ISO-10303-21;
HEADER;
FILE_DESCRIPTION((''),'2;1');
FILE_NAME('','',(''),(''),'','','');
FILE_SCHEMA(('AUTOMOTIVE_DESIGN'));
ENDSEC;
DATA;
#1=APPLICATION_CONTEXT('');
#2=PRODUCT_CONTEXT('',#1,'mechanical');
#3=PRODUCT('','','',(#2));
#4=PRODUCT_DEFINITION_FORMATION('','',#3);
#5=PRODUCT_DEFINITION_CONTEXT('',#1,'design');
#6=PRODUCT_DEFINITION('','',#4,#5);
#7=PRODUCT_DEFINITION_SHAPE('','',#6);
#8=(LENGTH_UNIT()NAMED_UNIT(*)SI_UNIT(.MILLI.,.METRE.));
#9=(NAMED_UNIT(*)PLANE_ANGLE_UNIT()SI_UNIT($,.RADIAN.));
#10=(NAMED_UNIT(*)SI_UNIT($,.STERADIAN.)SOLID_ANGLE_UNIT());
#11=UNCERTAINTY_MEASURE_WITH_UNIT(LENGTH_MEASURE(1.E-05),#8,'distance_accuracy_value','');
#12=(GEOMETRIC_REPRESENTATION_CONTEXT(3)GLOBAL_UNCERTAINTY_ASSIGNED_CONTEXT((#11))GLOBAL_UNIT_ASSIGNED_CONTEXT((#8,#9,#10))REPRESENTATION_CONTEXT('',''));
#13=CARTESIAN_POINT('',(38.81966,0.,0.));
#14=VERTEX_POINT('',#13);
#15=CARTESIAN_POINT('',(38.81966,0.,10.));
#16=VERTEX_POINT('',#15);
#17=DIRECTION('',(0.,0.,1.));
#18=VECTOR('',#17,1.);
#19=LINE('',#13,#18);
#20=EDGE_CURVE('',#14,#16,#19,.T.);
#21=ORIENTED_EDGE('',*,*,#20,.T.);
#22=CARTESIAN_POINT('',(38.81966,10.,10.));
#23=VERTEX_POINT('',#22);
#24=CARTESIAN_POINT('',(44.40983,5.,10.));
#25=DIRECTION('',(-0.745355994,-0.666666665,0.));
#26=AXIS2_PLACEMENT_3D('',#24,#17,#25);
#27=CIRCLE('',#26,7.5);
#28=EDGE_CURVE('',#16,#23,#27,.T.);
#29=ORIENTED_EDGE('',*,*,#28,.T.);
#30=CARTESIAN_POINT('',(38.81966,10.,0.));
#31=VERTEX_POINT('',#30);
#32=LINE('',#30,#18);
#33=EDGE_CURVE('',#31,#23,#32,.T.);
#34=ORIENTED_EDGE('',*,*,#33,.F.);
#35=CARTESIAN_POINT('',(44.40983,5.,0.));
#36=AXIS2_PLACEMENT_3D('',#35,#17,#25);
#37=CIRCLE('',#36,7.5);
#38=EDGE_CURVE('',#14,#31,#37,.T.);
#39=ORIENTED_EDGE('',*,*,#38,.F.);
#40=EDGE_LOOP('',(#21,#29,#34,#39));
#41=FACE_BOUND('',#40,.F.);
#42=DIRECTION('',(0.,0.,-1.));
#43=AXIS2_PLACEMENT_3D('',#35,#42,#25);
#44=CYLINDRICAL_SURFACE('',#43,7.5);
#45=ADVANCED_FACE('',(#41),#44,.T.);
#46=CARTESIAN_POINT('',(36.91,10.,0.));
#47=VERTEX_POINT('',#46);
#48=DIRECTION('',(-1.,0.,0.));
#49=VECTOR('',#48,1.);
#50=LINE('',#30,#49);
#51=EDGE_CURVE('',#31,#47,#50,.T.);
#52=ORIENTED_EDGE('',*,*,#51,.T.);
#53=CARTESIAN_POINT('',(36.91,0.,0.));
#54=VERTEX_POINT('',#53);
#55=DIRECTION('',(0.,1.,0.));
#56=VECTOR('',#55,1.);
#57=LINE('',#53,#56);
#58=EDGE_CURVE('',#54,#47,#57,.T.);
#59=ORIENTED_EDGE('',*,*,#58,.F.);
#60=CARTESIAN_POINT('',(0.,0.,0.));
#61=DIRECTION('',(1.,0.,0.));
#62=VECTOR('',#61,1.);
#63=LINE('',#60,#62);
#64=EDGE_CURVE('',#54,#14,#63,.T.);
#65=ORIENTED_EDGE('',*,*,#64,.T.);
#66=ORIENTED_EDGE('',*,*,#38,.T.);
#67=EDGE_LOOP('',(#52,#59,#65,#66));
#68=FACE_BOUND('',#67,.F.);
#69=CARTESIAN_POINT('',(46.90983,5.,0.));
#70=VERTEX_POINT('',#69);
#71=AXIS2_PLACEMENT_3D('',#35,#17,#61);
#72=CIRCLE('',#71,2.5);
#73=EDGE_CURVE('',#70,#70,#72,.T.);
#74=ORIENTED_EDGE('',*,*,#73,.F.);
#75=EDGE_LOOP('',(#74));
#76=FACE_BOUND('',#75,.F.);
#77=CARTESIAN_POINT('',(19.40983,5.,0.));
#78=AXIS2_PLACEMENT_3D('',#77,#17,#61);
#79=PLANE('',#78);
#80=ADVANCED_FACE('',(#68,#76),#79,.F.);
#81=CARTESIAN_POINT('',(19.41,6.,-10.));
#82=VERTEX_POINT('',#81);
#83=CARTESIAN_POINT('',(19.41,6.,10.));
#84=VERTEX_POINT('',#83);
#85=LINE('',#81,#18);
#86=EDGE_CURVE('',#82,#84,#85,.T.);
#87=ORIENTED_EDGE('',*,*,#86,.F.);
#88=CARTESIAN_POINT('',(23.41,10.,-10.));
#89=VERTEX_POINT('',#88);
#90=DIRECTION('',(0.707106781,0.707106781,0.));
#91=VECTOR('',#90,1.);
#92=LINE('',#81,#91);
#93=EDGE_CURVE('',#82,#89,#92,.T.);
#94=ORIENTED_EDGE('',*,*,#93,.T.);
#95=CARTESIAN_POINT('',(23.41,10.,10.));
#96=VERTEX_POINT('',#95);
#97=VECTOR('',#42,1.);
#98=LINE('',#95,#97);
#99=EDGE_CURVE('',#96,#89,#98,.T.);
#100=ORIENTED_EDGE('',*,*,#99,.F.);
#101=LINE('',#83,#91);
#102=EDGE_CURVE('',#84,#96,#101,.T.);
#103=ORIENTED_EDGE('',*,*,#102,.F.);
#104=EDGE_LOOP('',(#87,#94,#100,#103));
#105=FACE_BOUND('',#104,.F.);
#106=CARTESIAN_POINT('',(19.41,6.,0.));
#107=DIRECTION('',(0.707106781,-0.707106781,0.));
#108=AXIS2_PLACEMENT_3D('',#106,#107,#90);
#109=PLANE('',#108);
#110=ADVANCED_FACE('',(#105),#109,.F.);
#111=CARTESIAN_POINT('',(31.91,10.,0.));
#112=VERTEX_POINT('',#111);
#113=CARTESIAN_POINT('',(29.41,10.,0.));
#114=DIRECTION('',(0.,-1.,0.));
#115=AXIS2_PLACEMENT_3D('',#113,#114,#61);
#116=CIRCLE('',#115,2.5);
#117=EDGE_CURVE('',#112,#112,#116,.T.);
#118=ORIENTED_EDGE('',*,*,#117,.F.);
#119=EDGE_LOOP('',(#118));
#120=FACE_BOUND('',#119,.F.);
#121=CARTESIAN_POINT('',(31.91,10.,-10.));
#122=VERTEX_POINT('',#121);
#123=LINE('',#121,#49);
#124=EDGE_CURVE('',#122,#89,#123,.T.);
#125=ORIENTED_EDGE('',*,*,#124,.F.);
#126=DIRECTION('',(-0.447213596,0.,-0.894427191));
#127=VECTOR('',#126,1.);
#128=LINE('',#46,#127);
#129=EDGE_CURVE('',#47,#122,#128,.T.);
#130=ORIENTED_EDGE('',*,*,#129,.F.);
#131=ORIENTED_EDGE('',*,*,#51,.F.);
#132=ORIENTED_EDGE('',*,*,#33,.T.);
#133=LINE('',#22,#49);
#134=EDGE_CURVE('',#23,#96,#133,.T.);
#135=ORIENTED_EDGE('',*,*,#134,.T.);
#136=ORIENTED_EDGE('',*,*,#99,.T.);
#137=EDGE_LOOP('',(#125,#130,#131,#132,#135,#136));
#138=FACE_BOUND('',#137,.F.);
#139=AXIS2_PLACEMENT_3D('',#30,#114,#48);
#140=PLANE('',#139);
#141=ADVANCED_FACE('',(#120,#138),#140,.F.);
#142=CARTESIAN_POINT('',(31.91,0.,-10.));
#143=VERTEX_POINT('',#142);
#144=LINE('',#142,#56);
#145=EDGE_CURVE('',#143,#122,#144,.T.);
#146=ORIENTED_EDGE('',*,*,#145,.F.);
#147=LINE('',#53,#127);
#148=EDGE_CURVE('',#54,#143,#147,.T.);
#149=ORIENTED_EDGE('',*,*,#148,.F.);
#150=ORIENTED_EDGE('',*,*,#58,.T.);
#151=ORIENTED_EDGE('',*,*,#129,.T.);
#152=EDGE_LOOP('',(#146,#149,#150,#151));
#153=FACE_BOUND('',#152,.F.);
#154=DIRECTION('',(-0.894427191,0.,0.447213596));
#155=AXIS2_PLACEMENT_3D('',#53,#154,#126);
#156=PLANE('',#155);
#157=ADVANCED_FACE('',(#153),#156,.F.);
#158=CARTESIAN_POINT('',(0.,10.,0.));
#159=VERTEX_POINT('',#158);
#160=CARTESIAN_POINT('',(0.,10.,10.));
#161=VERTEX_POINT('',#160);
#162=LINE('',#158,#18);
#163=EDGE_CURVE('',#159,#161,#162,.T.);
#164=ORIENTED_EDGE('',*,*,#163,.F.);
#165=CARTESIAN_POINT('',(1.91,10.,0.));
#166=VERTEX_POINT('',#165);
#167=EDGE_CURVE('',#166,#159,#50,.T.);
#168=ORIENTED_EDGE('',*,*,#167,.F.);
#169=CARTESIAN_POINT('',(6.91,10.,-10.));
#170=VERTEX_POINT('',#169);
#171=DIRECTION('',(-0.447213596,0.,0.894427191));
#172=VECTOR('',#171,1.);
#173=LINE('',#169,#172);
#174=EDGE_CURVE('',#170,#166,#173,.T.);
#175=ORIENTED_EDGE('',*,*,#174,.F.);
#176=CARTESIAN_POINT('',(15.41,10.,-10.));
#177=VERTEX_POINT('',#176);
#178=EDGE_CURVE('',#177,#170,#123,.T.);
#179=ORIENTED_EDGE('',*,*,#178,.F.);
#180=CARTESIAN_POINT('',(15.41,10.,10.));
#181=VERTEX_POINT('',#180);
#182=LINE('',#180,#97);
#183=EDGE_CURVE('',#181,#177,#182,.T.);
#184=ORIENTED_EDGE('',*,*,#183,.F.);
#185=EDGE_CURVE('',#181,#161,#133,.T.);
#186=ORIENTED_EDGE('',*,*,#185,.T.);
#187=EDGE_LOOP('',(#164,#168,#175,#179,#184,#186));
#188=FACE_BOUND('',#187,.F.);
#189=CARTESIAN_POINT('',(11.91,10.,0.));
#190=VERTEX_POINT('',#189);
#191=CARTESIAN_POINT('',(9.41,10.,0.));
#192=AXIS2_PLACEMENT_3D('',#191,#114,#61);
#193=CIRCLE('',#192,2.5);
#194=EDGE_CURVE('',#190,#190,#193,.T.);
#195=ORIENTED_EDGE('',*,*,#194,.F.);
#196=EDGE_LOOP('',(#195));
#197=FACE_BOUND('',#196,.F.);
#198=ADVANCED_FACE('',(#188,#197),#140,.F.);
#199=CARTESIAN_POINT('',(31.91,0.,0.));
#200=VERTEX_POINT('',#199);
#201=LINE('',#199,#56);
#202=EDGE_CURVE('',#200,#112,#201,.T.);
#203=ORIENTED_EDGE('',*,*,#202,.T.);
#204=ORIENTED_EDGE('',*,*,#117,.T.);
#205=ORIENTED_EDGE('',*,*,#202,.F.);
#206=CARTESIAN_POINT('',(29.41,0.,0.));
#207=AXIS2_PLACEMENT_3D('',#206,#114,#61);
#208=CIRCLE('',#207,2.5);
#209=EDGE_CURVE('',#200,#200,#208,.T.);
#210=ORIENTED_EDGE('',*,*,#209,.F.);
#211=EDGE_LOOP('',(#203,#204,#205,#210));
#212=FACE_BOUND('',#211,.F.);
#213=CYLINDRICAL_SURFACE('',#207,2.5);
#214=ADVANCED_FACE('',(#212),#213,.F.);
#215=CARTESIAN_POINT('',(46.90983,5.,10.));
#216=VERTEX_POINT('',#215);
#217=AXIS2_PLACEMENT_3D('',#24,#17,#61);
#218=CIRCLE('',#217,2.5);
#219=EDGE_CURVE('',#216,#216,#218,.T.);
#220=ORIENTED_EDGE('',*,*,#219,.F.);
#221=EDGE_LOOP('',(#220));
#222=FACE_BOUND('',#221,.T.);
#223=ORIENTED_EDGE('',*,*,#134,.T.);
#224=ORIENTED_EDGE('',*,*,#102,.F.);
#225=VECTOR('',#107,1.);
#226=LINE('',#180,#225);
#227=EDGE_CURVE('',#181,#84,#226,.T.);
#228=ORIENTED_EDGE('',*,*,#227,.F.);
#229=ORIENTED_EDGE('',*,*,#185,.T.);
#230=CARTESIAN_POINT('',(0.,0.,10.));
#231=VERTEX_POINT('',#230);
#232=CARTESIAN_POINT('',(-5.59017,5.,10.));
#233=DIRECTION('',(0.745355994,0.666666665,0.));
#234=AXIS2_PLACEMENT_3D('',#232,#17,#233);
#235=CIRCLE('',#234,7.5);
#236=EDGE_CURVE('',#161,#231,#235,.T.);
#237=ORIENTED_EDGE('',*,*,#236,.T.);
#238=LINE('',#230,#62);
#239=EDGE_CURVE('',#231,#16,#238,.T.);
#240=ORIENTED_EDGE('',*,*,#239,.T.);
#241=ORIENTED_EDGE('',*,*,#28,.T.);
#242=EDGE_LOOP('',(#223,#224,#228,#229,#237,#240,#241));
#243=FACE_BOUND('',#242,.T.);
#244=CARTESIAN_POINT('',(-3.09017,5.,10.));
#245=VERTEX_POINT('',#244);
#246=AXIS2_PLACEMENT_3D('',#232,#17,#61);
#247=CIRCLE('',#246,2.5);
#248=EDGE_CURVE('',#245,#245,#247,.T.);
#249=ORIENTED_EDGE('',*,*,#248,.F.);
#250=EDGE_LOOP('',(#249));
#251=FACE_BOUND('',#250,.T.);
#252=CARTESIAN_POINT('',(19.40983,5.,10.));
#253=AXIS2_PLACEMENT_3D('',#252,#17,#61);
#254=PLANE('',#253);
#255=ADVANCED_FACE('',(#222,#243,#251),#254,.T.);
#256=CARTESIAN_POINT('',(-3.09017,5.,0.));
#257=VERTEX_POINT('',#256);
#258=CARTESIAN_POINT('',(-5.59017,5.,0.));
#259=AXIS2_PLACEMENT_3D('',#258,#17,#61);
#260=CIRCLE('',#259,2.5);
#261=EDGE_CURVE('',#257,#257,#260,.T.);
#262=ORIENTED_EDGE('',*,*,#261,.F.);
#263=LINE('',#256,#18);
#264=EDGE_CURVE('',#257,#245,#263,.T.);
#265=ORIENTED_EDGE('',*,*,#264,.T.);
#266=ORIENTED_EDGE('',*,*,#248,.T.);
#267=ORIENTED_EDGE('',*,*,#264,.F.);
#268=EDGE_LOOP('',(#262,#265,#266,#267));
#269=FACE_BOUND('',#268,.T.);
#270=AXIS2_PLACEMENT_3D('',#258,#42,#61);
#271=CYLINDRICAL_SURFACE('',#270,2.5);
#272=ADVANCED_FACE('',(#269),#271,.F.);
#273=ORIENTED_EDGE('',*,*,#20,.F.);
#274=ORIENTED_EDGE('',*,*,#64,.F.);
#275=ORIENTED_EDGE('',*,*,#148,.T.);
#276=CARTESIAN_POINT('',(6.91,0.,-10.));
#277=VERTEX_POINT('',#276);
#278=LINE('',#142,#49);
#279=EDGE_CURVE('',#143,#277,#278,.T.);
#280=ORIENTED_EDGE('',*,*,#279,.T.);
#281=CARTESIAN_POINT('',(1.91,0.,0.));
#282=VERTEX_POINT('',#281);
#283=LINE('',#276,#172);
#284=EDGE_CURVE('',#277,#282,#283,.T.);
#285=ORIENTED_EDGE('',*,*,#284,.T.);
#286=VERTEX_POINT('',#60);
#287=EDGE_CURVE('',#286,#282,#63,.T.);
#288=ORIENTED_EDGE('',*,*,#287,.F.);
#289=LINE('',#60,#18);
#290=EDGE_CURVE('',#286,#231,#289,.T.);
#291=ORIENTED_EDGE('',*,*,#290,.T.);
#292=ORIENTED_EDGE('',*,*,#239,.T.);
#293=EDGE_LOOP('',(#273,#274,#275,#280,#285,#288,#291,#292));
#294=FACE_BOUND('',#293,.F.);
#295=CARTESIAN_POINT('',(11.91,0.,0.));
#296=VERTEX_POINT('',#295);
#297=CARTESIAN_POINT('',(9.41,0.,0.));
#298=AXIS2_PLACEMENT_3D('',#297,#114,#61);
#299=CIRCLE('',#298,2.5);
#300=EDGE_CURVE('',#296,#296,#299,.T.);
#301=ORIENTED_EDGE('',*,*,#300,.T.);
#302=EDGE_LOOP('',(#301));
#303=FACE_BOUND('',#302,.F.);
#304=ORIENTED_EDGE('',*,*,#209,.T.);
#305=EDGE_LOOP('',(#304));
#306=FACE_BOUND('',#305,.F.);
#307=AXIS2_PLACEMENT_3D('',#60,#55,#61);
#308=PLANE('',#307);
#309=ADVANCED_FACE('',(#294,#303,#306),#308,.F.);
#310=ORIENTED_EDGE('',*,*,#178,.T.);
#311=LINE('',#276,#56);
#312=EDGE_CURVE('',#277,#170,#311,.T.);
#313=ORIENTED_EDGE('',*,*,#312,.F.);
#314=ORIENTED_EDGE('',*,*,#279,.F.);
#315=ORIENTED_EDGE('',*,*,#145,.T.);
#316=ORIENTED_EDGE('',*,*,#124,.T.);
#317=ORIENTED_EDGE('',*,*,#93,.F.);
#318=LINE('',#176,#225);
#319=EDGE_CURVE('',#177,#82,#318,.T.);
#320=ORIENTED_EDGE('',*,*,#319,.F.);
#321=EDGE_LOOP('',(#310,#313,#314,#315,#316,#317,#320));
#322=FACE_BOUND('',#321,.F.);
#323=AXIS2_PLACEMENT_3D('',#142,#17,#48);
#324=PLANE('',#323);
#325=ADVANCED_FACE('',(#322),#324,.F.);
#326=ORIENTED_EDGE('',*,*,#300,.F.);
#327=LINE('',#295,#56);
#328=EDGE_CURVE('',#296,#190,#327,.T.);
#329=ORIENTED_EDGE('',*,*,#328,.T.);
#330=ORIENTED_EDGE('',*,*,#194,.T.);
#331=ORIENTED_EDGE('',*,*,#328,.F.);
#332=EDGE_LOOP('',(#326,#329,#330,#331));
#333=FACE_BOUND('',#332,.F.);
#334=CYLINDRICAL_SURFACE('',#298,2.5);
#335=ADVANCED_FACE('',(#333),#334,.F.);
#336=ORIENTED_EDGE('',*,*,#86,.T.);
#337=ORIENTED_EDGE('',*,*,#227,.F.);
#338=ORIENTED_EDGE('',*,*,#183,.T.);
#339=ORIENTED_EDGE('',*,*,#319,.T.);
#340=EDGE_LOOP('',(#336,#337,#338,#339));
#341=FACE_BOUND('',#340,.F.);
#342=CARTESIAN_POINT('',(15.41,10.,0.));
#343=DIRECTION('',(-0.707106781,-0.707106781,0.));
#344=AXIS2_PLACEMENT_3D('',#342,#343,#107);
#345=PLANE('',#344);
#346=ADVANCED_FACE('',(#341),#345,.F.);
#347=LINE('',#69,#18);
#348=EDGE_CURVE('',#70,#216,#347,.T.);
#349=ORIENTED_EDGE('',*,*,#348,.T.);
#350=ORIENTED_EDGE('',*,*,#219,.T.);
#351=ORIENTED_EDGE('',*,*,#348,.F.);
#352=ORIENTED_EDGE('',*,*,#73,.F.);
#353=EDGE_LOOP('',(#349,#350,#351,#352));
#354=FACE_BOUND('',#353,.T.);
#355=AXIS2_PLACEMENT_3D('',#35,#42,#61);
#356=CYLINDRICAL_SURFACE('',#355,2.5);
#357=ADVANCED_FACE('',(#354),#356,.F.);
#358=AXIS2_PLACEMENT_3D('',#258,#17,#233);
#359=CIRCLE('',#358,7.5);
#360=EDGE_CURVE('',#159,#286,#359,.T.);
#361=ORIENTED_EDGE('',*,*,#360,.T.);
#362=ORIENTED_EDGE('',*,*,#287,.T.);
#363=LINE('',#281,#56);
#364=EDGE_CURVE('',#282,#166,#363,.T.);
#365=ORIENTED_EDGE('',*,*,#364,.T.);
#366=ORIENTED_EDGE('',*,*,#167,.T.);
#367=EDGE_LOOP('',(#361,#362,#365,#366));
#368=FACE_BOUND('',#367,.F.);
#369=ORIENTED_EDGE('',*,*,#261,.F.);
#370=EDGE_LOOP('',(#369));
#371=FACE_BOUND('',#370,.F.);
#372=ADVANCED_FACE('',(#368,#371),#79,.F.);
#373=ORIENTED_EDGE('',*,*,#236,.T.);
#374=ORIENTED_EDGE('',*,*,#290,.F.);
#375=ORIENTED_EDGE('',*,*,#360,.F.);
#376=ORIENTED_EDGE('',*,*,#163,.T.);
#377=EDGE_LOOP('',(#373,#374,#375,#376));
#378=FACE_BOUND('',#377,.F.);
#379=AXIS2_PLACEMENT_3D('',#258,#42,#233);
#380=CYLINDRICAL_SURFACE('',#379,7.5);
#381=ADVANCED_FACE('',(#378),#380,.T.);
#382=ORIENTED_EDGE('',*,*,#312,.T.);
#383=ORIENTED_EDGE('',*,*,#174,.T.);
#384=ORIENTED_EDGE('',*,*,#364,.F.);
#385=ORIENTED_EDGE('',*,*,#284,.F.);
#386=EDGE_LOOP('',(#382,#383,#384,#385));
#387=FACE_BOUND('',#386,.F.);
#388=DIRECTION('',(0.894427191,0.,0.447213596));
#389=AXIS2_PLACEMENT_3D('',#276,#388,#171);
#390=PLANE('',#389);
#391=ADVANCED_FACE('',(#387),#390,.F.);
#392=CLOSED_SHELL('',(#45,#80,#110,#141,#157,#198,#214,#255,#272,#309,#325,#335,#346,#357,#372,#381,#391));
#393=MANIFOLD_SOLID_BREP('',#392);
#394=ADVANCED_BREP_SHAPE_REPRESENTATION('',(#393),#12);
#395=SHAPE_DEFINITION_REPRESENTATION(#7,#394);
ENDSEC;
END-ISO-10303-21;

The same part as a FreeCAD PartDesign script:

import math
import FreeCAD as App
import Part
import Sketcher
from FreeCAD import Vector


def add_polygon(sketch, points):
    """Adds a closed chain of lines whose ends are joined by coincident constraints."""
    first, n = sketch.GeometryCount, len(points)
    for a, b in zip(points, points[1:] + points[:1]):
        sketch.addGeometry(Part.LineSegment(App.Vector(*a, 0), App.Vector(*b, 0)), False)
    for i in range(n):
        sketch.addConstraint(Sketcher.Constraint("Coincident", first + i, 2, first + (i + 1) % n, 1))

doc = App.newDocument("Part")
body = doc.addObject("PartDesign::Body", "Body")
body.AllowCompound = True

# Sketch on XZ plane
sketch1 = doc.addObject("Sketcher::SketchObject", "Sketch")
body.addObject(sketch1)
sketch1.AttachmentSupport = (doc.XZ_Plane, [""])
sketch1.MapMode = "FlatFace"
sketch1.addGeometry([
    Part.Circle(Vector(9.4, 0, 0), Vector(0, 0, 1), 2.5),
    Part.Circle(Vector(29.4, 0, 0), Vector(0, 0, 1), 2.5),
], False)
sketch1.addConstraint([
    Sketcher.Constraint("Equal", 0, 1),
    Sketcher.Constraint("PointOnObject", 0, 3, -1),
    Sketcher.Constraint("PointOnObject", 1, 3, -1),
    Sketcher.Constraint("Diameter", 0, 5.0),
    Sketcher.Constraint("DistanceX", 0, 3, 1, 3, 20.0),
    Sketcher.Constraint("DistanceX", -1, 1, 0, 3, 9.41),
])
pad1 = doc.addObject("PartDesign::Pad", "Pad")
body.addObject(pad1)
pad1.Profile = sketch1
pad1.Length = 10
pad1.Reversed = True
body2 = doc.addObject("PartDesign::Body", "Body001")

# Sketch on XY plane
sketch2 = doc.addObject("Sketcher::SketchObject", "Sketch001")
body2.addObject(sketch2)
sketch2.AttachmentSupport = (doc.getObject("XY_Plane001"), [""])
sketch2.MapMode = "FlatFace"
add_polygon(sketch2, [(15, 10), (19, 6), (23, 10)])  # lines 0-2
sketch2.addConstraint([
    Sketcher.Constraint("Horizontal", 2),
    Sketcher.Constraint("Perpendicular", 0, 1),
    Sketcher.Constraint("Equal", 0, 1),
    Sketcher.Constraint("DistanceX", 2, 2, 2, 1, 8.0),
    Sketcher.Constraint("DistanceY", -1, 1, 0, 2, 6.0),
    Sketcher.Constraint("DistanceX", -1, 1, 0, 2, 19.41),
])
pad2 = doc.addObject("PartDesign::Pad", "Pad001")
body2.addObject(pad2)
pad2.Profile = sketch2
pad2.Length = 20
pad2.Midplane = True
body3 = doc.addObject("PartDesign::Body", "Body002")

# Sketch on XZ plane
sketch3 = doc.addObject("Sketcher::SketchObject", "Sketch002")
body3.addObject(sketch3)
sketch3.AttachmentSupport = (doc.getObject("XZ_Plane002"), [""])
sketch3.MapMode = "FlatFace"
add_polygon(sketch3, [(37, 0), (2, 0), (7, -10), (32, -10)])  # lines 0-3
sketch3.addConstraint([
    Sketcher.Constraint("Horizontal", 0),
    Sketcher.Constraint("Horizontal", 2),
    Sketcher.Constraint("PointOnObject", 0, 2, -1),
    Sketcher.Constraint("Equal", 1, 3),
    Sketcher.Constraint("DistanceX", 0, 2, 0, 1, 35.0),
    Sketcher.Constraint("DistanceX", 2, 1, 2, 2, 25.0),
    Sketcher.Constraint("DistanceY", 1, 2, -1, 1, 10.0),
    Sketcher.Constraint("DistanceX", -1, 1, 0, 2, 1.91),
])
pad3 = doc.addObject("PartDesign::Pad", "Pad002")
body3.addObject(pad3)
pad3.Profile = sketch3
pad3.Length = 10
pad3.Reversed = True
body4 = doc.addObject("PartDesign::Body", "Body003")

# Sketch on XY plane
sketch4 = doc.addObject("Sketcher::SketchObject", "Sketch003")
body4.addObject(sketch4)
sketch4.AttachmentSupport = (doc.getObject("XY_Plane003"), [""])
sketch4.MapMode = "FlatFace"
sketch4.addGeometry([
    Part.LineSegment(Vector(0, 0, 0), Vector(38.8, 0, 0)),  # 0
    Part.ArcOfCircle(Part.Circle(Vector(44.4, 5, 0), Vector(0, 0, 1), 7.5), math.radians(-138), math.radians(138)),  # 1
    Part.LineSegment(Vector(38.8, 10, 0), Vector(0, 10, 0)),  # 2
    Part.ArcOfCircle(Part.Circle(Vector(-5.6, 5, 0), Vector(0, 0, 1), 7.5), math.radians(42), math.radians(318)),  # 3
    Part.Circle(Vector(-5.6, 5, 0), Vector(0, 0, 1), 2.5),  # 4
    Part.Circle(Vector(44.4, 5, 0), Vector(0, 0, 1), 2.5),  # 5
], False)
sketch4.addConstraint([
    Sketcher.Constraint("Coincident", 0, 2, 1, 1),
    Sketcher.Constraint("Coincident", 1, 2, 2, 1),
    Sketcher.Constraint("Coincident", 2, 2, 3, 1),
    Sketcher.Constraint("Coincident", 3, 2, 0, 1),
    Sketcher.Constraint("Horizontal", 0),
    Sketcher.Constraint("Horizontal", 2),
    Sketcher.Constraint("Coincident", 3, 2, -1, 1),
    Sketcher.Constraint("Coincident", 4, 3, 3, 3),
    Sketcher.Constraint("Coincident", 5, 3, 1, 3),
    Sketcher.Constraint("Equal", 1, 3),
    Sketcher.Constraint("Equal", 4, 5),
    Sketcher.Constraint("PointOnObject", 2, 2, -2),
    Sketcher.Constraint("Horizontal", 1, 3, 3, 3),
    Sketcher.Constraint("Diameter", 4, 5.0),
    Sketcher.Constraint("Radius", 1, 7.5),
    Sketcher.Constraint("DistanceY", -1, 1, 1, 3, 5.0),
    Sketcher.Constraint("DistanceX", 3, 3, 1, 3, 50.0),
])
pad4 = doc.addObject("PartDesign::Pad", "Pad003")
body4.addObject(pad4)
pad4.Profile = sketch4
pad4.Length = 10
doc.recompute()

boolean = doc.addObject("PartDesign::Boolean", "Boolean")
body4.addObject(boolean)
boolean.Type = "Fuse"
boolean.addObjects([body3])
doc.recompute()

boolean2 = doc.addObject("PartDesign::Boolean", "Boolean001")
body4.addObject(boolean2)
boolean2.Type = "Cut"
boolean2.addObjects([body2])
doc.recompute()

boolean3 = doc.addObject("PartDesign::Boolean", "Boolean002")
body4.addObject(boolean3)
boolean3.Type = "Cut"
boolean3.addObjects([body])

doc.recompute()
